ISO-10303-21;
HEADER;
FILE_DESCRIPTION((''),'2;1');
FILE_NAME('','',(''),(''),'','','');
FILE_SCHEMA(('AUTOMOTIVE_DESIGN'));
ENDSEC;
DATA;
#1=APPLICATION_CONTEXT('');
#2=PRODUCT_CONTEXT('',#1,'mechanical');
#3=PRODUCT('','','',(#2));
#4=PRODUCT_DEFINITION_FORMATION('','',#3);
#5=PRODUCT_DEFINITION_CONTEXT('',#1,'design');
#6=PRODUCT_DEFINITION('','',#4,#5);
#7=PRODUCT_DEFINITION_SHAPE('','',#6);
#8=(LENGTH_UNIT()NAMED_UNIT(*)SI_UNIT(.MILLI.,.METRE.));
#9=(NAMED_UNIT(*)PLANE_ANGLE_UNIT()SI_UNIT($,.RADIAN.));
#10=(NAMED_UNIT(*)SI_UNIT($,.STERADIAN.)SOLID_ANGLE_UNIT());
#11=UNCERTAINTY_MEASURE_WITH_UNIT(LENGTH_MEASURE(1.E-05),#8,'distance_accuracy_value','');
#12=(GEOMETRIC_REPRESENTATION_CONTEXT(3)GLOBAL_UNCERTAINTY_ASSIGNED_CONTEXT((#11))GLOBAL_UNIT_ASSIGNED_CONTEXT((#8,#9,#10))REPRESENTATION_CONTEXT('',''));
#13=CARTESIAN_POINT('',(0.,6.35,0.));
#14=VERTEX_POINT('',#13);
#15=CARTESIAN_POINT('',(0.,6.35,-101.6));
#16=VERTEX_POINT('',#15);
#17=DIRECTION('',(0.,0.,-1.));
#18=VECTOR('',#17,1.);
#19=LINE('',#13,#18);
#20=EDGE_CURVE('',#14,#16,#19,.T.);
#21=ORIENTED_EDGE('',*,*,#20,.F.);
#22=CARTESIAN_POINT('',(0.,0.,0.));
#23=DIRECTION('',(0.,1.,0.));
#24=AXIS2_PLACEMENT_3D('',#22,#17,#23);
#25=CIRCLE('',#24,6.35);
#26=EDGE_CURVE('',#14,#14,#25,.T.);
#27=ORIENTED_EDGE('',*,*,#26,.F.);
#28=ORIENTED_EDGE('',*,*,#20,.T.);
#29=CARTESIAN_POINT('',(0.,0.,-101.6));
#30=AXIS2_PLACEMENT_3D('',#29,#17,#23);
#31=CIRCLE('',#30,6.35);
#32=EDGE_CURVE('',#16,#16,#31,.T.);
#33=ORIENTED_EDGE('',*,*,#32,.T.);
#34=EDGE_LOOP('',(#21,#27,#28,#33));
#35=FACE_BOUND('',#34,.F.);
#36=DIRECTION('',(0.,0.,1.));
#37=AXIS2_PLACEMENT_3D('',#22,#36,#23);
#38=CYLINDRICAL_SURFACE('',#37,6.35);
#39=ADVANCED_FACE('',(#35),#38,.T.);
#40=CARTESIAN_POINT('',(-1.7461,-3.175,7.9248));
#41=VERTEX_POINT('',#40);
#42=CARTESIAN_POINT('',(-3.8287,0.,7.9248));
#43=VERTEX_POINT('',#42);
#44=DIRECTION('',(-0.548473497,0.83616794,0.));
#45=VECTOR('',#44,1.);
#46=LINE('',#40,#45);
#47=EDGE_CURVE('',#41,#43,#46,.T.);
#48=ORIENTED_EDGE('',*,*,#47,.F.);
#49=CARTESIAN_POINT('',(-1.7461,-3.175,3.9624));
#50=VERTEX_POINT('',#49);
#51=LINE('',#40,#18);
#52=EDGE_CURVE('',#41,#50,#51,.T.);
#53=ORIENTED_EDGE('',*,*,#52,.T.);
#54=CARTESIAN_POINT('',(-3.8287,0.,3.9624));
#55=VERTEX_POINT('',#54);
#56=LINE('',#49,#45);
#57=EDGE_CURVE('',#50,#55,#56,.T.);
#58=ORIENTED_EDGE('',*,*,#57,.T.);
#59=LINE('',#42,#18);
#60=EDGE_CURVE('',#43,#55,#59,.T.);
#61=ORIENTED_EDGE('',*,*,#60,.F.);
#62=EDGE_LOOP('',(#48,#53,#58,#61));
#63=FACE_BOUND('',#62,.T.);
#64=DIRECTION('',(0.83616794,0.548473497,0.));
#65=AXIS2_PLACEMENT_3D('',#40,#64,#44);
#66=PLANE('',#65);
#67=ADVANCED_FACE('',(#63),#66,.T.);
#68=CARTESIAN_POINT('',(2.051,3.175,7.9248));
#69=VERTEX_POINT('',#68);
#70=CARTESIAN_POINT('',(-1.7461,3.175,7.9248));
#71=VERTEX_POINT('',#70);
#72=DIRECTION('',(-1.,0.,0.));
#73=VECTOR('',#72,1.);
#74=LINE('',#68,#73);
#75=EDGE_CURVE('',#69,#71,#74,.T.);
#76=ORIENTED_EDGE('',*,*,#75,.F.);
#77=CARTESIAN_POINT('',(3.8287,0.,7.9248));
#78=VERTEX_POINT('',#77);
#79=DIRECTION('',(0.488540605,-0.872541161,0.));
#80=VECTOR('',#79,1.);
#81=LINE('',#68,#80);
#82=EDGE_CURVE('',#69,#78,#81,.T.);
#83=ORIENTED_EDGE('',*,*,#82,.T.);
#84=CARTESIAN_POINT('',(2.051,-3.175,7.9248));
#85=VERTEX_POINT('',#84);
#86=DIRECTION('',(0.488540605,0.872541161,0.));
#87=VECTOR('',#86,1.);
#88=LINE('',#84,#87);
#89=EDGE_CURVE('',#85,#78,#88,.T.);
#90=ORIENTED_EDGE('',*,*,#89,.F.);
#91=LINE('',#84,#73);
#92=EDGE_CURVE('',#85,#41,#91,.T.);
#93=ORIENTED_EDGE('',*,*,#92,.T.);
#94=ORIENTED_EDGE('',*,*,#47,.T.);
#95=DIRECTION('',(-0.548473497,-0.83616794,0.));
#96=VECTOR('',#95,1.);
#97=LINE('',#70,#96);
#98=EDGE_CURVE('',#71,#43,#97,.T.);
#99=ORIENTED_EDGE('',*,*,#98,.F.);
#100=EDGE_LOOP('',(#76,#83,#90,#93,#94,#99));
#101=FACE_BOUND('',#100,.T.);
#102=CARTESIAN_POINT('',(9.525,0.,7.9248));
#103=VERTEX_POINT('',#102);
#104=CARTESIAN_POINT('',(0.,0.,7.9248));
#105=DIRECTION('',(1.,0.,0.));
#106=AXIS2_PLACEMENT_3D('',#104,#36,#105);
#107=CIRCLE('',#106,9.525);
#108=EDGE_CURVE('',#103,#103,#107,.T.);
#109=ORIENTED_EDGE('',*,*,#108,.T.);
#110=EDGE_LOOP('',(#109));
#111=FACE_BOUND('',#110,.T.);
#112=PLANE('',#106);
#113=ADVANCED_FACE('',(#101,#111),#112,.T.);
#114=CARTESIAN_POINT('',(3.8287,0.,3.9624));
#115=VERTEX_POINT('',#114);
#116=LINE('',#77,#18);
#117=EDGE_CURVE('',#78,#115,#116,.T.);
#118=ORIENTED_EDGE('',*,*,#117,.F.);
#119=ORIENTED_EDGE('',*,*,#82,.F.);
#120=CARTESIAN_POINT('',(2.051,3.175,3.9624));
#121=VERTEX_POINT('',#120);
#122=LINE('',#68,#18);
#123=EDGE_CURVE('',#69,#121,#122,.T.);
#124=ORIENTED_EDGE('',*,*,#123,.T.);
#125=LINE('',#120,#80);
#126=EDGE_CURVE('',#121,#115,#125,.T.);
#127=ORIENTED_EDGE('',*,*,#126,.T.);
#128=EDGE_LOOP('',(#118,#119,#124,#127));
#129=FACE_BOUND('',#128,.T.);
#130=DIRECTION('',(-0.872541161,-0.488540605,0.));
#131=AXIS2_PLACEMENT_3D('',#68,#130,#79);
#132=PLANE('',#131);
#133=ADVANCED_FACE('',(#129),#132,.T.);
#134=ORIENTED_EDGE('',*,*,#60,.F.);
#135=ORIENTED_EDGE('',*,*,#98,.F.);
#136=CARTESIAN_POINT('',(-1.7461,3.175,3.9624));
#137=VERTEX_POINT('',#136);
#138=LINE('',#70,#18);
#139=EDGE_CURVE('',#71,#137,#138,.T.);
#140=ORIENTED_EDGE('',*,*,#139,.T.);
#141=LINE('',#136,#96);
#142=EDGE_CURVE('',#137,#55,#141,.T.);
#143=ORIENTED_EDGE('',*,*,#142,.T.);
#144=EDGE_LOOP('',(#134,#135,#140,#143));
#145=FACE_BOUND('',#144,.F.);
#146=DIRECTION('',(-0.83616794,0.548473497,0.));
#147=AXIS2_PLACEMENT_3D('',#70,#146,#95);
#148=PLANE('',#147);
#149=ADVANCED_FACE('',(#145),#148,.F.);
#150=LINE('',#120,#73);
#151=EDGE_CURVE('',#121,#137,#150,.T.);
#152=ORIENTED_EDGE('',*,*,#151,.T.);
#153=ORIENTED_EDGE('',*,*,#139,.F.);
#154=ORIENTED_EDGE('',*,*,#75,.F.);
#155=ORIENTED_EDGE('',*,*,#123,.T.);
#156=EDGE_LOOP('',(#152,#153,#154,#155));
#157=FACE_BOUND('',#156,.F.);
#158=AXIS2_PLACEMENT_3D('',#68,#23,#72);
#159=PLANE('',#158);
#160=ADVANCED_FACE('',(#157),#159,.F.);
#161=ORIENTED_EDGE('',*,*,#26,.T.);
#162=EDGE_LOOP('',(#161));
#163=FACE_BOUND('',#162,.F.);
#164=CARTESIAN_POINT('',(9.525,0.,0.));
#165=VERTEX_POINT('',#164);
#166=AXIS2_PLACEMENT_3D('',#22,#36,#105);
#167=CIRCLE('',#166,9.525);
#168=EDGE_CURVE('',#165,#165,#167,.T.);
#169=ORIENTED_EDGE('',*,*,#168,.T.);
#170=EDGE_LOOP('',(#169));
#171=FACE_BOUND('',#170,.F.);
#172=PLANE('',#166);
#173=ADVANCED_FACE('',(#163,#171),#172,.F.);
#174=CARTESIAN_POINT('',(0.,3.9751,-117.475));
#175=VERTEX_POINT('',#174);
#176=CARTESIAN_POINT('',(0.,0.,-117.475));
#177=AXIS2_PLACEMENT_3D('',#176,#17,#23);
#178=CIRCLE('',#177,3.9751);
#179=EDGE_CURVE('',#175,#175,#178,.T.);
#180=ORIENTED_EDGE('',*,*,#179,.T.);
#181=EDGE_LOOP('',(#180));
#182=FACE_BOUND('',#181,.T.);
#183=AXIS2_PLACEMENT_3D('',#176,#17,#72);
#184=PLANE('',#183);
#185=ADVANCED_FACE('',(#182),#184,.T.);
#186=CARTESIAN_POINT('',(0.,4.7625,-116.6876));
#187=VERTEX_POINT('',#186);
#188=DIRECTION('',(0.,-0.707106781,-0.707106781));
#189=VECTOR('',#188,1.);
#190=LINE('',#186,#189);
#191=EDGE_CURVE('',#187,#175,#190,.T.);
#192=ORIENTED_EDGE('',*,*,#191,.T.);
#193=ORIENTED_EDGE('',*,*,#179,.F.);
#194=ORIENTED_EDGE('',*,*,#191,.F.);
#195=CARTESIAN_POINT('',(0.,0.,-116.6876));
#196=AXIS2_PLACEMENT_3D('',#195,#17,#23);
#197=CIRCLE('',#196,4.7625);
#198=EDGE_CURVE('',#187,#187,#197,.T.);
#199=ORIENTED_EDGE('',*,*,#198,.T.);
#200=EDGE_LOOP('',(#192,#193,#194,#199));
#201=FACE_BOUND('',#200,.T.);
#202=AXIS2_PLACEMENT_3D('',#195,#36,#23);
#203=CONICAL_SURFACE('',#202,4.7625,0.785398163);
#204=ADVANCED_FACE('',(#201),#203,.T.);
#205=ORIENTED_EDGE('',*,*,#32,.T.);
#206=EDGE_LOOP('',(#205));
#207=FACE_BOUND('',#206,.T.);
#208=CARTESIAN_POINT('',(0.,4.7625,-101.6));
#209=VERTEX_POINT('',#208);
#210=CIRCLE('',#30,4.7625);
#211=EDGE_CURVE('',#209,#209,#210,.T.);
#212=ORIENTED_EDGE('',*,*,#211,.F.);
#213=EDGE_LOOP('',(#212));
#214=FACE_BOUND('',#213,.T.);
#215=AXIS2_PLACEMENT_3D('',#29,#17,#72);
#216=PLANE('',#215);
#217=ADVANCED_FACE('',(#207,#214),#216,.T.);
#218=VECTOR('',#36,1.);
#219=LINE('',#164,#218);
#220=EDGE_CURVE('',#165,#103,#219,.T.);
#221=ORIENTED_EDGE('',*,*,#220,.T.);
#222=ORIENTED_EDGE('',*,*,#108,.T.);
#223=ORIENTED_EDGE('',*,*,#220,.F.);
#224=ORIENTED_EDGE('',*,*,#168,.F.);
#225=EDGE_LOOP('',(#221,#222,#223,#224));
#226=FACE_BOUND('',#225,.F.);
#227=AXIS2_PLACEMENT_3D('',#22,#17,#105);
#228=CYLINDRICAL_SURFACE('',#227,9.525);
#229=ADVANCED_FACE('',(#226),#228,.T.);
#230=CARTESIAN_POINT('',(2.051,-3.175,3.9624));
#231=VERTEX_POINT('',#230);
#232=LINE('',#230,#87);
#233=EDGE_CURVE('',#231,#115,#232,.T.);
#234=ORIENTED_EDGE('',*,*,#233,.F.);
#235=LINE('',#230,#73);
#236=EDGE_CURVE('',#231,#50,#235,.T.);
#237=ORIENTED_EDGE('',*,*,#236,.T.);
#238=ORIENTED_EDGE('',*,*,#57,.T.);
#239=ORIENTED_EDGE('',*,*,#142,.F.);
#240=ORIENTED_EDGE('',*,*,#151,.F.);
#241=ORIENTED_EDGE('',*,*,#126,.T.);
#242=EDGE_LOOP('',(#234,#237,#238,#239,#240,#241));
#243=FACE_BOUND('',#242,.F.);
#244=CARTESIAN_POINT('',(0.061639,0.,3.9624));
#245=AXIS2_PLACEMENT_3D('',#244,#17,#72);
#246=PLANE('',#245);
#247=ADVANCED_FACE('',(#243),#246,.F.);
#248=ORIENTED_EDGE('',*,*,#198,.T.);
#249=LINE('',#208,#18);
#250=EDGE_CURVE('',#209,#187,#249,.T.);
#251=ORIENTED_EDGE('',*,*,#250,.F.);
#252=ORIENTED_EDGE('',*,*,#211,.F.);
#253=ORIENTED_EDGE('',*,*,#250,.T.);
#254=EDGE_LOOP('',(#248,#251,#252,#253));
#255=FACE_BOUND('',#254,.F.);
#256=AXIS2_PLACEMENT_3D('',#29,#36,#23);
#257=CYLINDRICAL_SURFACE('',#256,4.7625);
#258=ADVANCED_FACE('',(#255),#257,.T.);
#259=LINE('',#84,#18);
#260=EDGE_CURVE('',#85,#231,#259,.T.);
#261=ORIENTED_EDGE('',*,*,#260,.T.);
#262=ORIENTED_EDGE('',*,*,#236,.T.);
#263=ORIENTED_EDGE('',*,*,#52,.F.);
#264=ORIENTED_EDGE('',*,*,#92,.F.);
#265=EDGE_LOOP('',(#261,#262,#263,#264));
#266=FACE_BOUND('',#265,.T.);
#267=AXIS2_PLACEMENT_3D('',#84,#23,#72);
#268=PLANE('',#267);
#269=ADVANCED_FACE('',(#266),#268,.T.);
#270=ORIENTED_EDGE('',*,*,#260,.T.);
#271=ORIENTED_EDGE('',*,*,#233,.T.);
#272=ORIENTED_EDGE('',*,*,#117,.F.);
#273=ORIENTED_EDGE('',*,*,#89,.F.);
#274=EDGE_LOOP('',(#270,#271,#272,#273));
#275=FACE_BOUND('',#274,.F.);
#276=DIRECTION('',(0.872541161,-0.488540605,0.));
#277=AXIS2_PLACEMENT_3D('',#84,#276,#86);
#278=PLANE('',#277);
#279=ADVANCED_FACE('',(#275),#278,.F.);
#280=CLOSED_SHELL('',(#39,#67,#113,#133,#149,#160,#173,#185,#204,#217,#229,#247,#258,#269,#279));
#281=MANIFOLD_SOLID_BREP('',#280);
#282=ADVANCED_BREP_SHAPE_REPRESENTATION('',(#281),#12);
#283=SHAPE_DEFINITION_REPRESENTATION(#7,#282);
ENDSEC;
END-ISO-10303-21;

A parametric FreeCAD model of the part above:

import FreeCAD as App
import Part
import Sketcher
from FreeCAD import Vector
Q = App.Units.Quantity


def edges_at(feature, points):
    """Names of the edges that pass closest to the given points."""
    edges = feature.Shape.Edges
    near = lambda p: min(range(len(edges)), key=lambda i: edges[i].distToShape(Part.Vertex(*p))[0])
    return sorted({f"Edge{near(p) + 1}" for p in points})


def add_polygon(sketch, points):
    """Adds a closed chain of lines whose ends are joined by coincident constraints."""
    first, n = sketch.GeometryCount, len(points)
    for a, b in zip(points, points[1:] + points[:1]):
        sketch.addGeometry(Part.LineSegment(App.Vector(*a, 0), App.Vector(*b, 0)), False)
    for i in range(n):
        sketch.addConstraint(Sketcher.Constraint("Coincident", first + i, 2, first + (i + 1) % n, 1))

doc = App.newDocument("Part")
body = doc.addObject("PartDesign::Body", "Body")

# Sketch on XY plane
sketch1 = body.newObject("Sketcher::SketchObject", "Sketch")
sketch1.AttachmentSupport = (doc.getObject("XY_Plane"), [""])
sketch1.MapMode = "FlatFace"
sketch1.addGeometry(Part.Circle(Vector(0, 0, 0), Vector(0, 0, 1), 10), False)
sketch1.addConstraint([
    Sketcher.Constraint("Coincident", 0, 3, -1, 1),
    Sketcher.Constraint("Diameter", 0, Q("0.75 in")),
])
pad1 = body.newObject("PartDesign::Pad", "Pad")
pad1.Profile = sketch1
pad1.Length = Q("0.312 in")

# Sketch on XY plane
sketch2 = body.newObject("Sketcher::SketchObject", "Sketch001")
sketch2.AttachmentSupport = (doc.getObject("XY_Plane"), [""])
sketch2.MapMode = "FlatFace"
sketch2.addGeometry(Part.Circle(Vector(0, 0, 0), Vector(0, 0, 1), 6), False)
sketch2.addConstraint([
    Sketcher.Constraint("Coincident", 0, 3, -1, 1),
    Sketcher.Constraint("Diameter", 0, Q("0.5 in")),
])
pad2 = body.newObject("PartDesign::Pad", "Pad001")
pad2.Profile = sketch2
pad2.Length = Q("4 in")
pad2.Reversed = True

# Sketch on XY plane
sketch3 = body.newObject("Sketcher::SketchObject", "Sketch002")
sketch3.AttachmentSupport = (doc.getObject("XY_Plane"), [""])
sketch3.MapMode = "FlatFace"
sketch3.AttachmentOffset = App.Placement(Vector(0, 0, -4 * 25.4), App.Rotation())
sketch3.addGeometry(Part.Circle(Vector(0, 0, 0), Vector(0, 0, 1), 4.8), False)
sketch3.addConstraint([
    Sketcher.Constraint("Coincident", 0, 3, -1, 1),
    Sketcher.Constraint("Diameter", 0, Q("0.375 in")),
])
pad3 = body.newObject("PartDesign::Pad", "Pad002")
pad3.Profile = sketch3
pad3.Length = Q("0.625 in")
pad3.Reversed = True

# Sketch on XY plane
sketch4 = body.newObject("Sketcher::SketchObject", "Sketch003")
sketch4.AttachmentSupport = (doc.getObject("XY_Plane"), [""])
sketch4.MapMode = "FlatFace"
sketch4.AttachmentOffset = App.Placement(Vector(0, 0, 0.312 * 25.4), App.Rotation())
add_polygon(sketch4, [(-3.8, 0), (-1.7, -3.2), (2.1, -3.2), (3.8, 0), (2.1, 3.2), (-1.7, 3.2)])  # lines 0-5
sketch4.addConstraint([
    Sketcher.Constraint("Horizontal", 1),
    Sketcher.Constraint("Horizontal", 4),
    Sketcher.Constraint("Symmetric", 2, 2, 5, 2, -1, 1),
    Sketcher.Constraint("Symmetric", 1, 2, 3, 2, -1),
    Sketcher.Constraint("PointOnObject", 2, 2, -1),
    Sketcher.Constraint("Vertical", 0, 2, 4, 2),
    Sketcher.Constraint("DistanceX", 1, 2, 2, 2, Q("0.07 in")),
    Sketcher.Constraint("DistanceY", 1, 2, 3, 2, Q("0.25 in")),
    Sketcher.Constraint("DistanceX", 1, 1, 1, 2, Q("0.1495 in")),
    Sketcher.Constraint("DistanceX", 5, 2, 0, 2, Q("0.082 in")),
])
pocket1 = body.newObject("PartDesign::Pocket", "Pocket")
pocket1.Profile = sketch4
pocket1.Length = Q("0.156 in")
doc.recompute()

chamfer = body.newObject("PartDesign::Chamfer", "Chamfer")
chamfer.Base = (pocket1, edges_at(pocket1, [(0, -4.763, -117.475)]))
chamfer.Size = Q("0.031 in")

doc.recompute()
